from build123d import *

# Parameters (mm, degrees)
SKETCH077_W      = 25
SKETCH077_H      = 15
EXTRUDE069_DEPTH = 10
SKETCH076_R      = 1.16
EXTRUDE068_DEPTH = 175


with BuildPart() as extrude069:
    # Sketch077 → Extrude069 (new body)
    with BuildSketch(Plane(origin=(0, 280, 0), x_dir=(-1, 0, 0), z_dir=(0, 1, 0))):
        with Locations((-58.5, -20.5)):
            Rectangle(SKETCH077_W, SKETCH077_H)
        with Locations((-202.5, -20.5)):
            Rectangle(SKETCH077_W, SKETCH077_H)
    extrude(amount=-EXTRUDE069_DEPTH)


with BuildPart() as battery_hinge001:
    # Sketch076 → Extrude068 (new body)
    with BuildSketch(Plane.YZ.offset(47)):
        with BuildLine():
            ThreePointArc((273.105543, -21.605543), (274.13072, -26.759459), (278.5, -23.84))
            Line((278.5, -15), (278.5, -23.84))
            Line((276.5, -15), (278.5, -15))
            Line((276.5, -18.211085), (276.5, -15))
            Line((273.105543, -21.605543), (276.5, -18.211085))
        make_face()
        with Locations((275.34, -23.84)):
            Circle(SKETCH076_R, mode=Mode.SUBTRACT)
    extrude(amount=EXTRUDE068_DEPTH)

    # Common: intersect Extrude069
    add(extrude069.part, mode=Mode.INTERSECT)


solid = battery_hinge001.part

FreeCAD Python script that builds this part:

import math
import FreeCAD as App
import Part
import Sketcher
Q = App.Units.Quantity


def add_polygon(sketch, points):
    """Adds a closed chain of lines whose ends are joined by coincident constraints."""
    first, n = sketch.GeometryCount, len(points)
    for a, b in zip(points, points[1:] + points[:1]):
        sketch.addGeometry(Part.LineSegment(App.Vector(*a, 0), App.Vector(*b, 0)), False)
    for i in range(n):
        sketch.addConstraint(Sketcher.Constraint("Coincident", first + i, 2, first + (i + 1) % n, 1))

doc = App.newDocument("Part")
body = doc.addObject("PartDesign::Body", "Body")
body.AllowCompound = True

sketch1 = body.newObject("Sketcher::SketchObject", "Sketch")
sketch1.AttachmentSupport = (doc.getObject("XZ_Plane"), [""])
sketch1.MapMode = "FlatFace"
sketch1.AttachmentOffset = App.Placement(App.Vector(0, 0, -280), App.Rotation())
add_polygon(sketch1, [(71, -13), (71, -28), (46, -28), (46, -13)])
add_polygon(sketch1, [(215, -13), (215, -28), (190, -28), (190, -13)])
sketch1.addConstraint([
    Sketcher.Constraint("Vertical", 0),
    Sketcher.Constraint("Horizontal", 1),
    Sketcher.Constraint("Vertical", 2),
    Sketcher.Constraint("Horizontal", 3),
    Sketcher.Constraint("Vertical", 4),
    Sketcher.Constraint("Horizontal", 5),
    Sketcher.Constraint("Vertical", 6),
    Sketcher.Constraint("Horizontal", 7),
    Sketcher.Constraint("Horizontal", 1, 2, 4, 2),
    Sketcher.Constraint("Horizontal", 3, 2, 6, 2),
    Sketcher.Constraint("Equal", 3, 5),
    Sketcher.Constraint("DistanceX", 1, 2, 1, 1, Q("25 mm")),
    Sketcher.Constraint("DistanceY", 0, 2, 0, 1, Q("15 mm")),
    Sketcher.Constraint("DistanceX", -1, 1, 0, 2, Q("71 mm")),
    Sketcher.Constraint("DistanceY", 0, 2, -1, 1, Q("28 mm")),
    Sketcher.Constraint("DistanceX", -1, 1, 4, 2, Q("215 mm")),
])
pad1 = body.newObject("PartDesign::Pad", "Pad")
pad1.Profile = sketch1
pad1.Length = 10
body2 = doc.addObject("PartDesign::Body", "Body001")
body2.AllowCompound = True

sketch2 = body2.newObject("Sketcher::SketchObject", "Sketch001")
sketch2.AttachmentSupport = (doc.getObject("YZ_Plane001"), [""])
sketch2.MapMode = "FlatFace"
sketch2.AttachmentOffset = App.Placement(App.Vector(0, 0, 47), App.Rotation())
sketch2.addGeometry([
    Part.ArcOfCircle(Part.Circle(App.Vector(275.3, -23.8, 0), App.Vector(0, 0, 1), 3.2), math.radians(135), math.radians(360)),
    Part.LineSegment(App.Vector(278.5, -23.8, 0), App.Vector(278.5, -15, 0)),
    Part.LineSegment(App.Vector(278.5, -15, 0), App.Vector(276.5, -15, 0)),
    Part.LineSegment(App.Vector(276.5, -15, 0), App.Vector(276.5, -18.2, 0)),
    Part.LineSegment(App.Vector(276.5, -18.2, 0), App.Vector(273.1, -21.6, 0)),
    Part.Circle(App.Vector(275.3, -23.8, 0), App.Vector(0, 0, 1), 1.2),
], False)
sketch2.addConstraint([
    Sketcher.Constraint("Tangent", 0, 2, 1, 1),
    Sketcher.Constraint("Coincident", 1, 2, 2, 1),
    Sketcher.Constraint("Coincident", 2, 2, 3, 1),
    Sketcher.Constraint("Coincident", 3, 2, 4, 1),
    Sketcher.Constraint("Tangent", 4, 2, 0, 1),
    Sketcher.Constraint("Vertical", 1),
    Sketcher.Constraint("Horizontal", 2),
    Sketcher.Constraint("Vertical", 3),
    Sketcher.Constraint("Coincident", 5, 3, 0, 3),
    Sketcher.Constraint("Diameter", 5, Q("2.32 mm")),
    Sketcher.Constraint("DistanceX", 2, 2, 2, 1, Q("2 mm")),
    Sketcher.Constraint("Angle", 4, Q("-134.999992 deg")),
    Sketcher.Constraint("Radius", 0, Q("3.16 mm")),
    Sketcher.Constraint("DistanceY", 1, 2, -1, 1, Q("15 mm")),
    Sketcher.Constraint("DistanceY", 1, 1, 1, 2, Q("8.84 mm")),
    Sketcher.Constraint("DistanceX", -1, 1, 0, 2, Q("278.5 mm")),
])
pad2 = body2.newObject("PartDesign::Pad", "Pad001")
pad2.Profile = sketch2
pad2.Length = 175
doc.recompute()

boolean = body2.newObject("PartDesign::Boolean", "Boolean")
boolean.Type = "Common"
boolean.addObjects([body])

doc.recompute()
